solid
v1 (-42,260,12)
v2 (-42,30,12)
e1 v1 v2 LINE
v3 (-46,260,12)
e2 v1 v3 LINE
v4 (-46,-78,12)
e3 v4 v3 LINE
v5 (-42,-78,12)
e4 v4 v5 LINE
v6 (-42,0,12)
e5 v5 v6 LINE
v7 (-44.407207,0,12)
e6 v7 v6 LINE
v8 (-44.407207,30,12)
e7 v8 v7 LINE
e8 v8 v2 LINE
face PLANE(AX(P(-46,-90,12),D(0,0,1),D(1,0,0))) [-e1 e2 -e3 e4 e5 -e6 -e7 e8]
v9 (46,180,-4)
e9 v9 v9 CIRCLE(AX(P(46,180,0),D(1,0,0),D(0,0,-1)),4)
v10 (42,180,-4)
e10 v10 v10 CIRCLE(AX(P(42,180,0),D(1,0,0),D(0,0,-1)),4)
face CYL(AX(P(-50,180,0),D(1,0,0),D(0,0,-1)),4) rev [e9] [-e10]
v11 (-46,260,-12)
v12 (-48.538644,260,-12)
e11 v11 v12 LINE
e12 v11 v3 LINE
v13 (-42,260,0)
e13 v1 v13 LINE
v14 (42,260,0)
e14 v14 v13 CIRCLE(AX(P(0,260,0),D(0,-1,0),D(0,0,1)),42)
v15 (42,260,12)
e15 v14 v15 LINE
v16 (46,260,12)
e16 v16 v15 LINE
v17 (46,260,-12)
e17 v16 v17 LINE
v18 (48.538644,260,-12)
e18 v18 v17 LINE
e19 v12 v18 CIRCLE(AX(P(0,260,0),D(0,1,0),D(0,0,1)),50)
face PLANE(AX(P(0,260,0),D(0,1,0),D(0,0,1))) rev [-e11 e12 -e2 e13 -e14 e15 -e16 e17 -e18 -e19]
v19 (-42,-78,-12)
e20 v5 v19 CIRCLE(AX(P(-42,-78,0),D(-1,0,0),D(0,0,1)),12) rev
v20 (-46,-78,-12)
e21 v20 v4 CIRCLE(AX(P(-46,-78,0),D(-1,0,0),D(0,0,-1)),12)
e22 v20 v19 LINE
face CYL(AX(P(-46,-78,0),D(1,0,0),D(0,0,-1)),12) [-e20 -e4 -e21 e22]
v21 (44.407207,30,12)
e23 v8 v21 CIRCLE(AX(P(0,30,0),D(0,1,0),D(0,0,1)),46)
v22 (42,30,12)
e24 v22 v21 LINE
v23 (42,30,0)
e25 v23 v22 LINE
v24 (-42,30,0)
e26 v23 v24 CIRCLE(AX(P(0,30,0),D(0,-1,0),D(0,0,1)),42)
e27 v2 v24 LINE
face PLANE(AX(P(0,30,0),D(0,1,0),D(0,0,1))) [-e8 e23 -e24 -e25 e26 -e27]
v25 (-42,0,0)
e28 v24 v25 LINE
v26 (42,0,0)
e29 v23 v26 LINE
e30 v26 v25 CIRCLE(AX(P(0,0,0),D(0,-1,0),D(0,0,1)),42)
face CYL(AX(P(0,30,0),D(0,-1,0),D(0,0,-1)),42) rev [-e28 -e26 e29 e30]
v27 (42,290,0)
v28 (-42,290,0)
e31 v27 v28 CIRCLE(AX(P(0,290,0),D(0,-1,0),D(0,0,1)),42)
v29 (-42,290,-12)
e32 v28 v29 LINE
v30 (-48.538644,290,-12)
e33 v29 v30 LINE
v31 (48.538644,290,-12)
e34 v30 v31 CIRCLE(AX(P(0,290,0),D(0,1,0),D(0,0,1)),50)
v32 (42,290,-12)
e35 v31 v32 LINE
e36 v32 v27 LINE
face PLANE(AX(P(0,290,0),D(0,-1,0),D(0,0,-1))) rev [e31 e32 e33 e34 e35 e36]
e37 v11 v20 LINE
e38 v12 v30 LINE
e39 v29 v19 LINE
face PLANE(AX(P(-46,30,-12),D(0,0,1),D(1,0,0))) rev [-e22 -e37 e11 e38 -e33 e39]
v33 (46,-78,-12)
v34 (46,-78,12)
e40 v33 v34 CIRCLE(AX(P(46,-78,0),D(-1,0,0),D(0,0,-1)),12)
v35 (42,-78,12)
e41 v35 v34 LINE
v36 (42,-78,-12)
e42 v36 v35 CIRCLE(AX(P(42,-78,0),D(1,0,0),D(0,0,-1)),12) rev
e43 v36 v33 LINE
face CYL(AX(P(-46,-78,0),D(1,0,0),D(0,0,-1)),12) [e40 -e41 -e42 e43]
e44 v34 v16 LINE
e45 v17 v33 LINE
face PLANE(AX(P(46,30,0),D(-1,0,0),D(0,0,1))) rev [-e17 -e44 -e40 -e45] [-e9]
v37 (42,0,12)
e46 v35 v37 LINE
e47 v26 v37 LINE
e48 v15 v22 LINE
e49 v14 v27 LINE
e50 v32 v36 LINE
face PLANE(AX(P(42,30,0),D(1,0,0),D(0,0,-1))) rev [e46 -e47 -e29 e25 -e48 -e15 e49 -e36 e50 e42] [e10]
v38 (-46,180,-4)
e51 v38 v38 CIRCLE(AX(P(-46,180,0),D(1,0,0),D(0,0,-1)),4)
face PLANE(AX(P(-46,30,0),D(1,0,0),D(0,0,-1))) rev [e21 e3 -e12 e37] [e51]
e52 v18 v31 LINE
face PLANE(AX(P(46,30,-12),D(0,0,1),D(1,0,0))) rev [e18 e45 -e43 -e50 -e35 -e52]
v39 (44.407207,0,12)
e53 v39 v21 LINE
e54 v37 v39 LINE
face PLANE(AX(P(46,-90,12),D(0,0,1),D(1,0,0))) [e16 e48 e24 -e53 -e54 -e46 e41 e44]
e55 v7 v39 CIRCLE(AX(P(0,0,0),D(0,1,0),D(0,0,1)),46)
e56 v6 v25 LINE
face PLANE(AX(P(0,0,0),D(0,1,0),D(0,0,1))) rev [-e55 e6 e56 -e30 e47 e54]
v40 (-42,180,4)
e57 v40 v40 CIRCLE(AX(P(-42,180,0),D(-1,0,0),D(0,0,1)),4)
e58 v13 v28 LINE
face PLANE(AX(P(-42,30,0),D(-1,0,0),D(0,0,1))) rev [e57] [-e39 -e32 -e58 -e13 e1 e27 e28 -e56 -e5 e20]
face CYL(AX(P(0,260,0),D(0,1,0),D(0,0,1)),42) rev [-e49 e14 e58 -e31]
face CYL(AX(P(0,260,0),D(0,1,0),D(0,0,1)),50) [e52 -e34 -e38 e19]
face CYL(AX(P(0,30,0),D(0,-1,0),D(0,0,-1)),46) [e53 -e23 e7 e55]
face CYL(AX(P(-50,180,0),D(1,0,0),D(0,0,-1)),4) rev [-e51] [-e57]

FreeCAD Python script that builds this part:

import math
import FreeCAD as App
import Part
import Sketcher

doc = App.newDocument("Part")
body = doc.addObject("PartDesign::Body", "Body")

# Sketch on XZ plane
sketch1 = body.newObject("Sketcher::SketchObject", "Sketch")
sketch1.AttachmentSupport = (doc.getObject("XZ_Plane"), [""])
sketch1.MapMode = "FlatFace"
sketch1.addGeometry([
    Part.LineSegment(App.Vector(-46, -12, 0), App.Vector(-46, 0, 0)),  # 0
    Part.ArcOfCircle(Part.Circle(App.Vector(0, 0, 0), App.Vector(0, 0, 1), 46), math.radians(0), math.radians(180)),  # 1
    Part.LineSegment(App.Vector(46, 0, 0), App.Vector(46, -12, 0)),  # 2
    Part.LineSegment(App.Vector(46, -12, 0), App.Vector(42, -12, 0)),  # 3
    Part.LineSegment(App.Vector(42, -12, 0), App.Vector(42, 0, 0)),  # 4
    Part.ArcOfCircle(Part.Circle(App.Vector(0, 0, 0), App.Vector(0, 0, 1), 42), math.radians(0), math.radians(180)),  # 5
    Part.LineSegment(App.Vector(-42, 0, 0), App.Vector(-42, -12, 0)),  # 6
    Part.LineSegment(App.Vector(-42, -12, 0), App.Vector(-46, -12, 0)),  # 7
], False)
sketch1.addConstraint([
    Sketcher.Constraint("Tangent", 0, 2, 1, 2),
    Sketcher.Constraint("Tangent", 1, 1, 2, 1),
    Sketcher.Constraint("Coincident", 2, 2, 3, 1),
    Sketcher.Constraint("Coincident", 3, 2, 4, 1),
    Sketcher.Constraint("Tangent", 4, 2, 5, 1),
    Sketcher.Constraint("Tangent", 5, 2, 6, 1),
    Sketcher.Constraint("Coincident", 6, 2, 7, 1),
    Sketcher.Constraint("Coincident", 7, 2, 0, 1),
    Sketcher.Constraint("Vertical", 0),
    Sketcher.Constraint("Vertical", 2),
    Sketcher.Constraint("Horizontal", 3),
    Sketcher.Constraint("Vertical", 4),
    Sketcher.Constraint("Vertical", 6),
    Sketcher.Constraint("Horizontal", 7),
    Sketcher.Constraint("Coincident", 1, 3, -1, 1),
    Sketcher.Constraint("Coincident", 5, 3, -1, 1),
    Sketcher.Constraint("Horizontal", 3, 2, 6, 2),
    Sketcher.Constraint("Radius", 1, 46.0),
    Sketcher.Constraint("Radius", 5, 42.0),
    Sketcher.Constraint("DistanceY", 0, 1, 0, 2, 12.0),
])
pad1 = body.newObject("PartDesign::Pad", "Pad")
pad1.Profile = sketch1
pad1.Length = 30
pad1.Reversed = True

# Sketch on XZ plane
sketch2 = body.newObject("Sketcher::SketchObject", "Sketch001")
sketch2.AttachmentSupport = (doc.getObject("XZ_Plane"), [""])
sketch2.MapMode = "FlatFace"
sketch2.AttachmentOffset = App.Placement(App.Vector(0, 0, -30), App.Rotation())
sketch2.addGeometry([
    Part.LineSegment(App.Vector(-46, -12, 0), App.Vector(-46, 12, 0)),  # 0
    Part.LineSegment(App.Vector(-46, 12, 0), App.Vector(-42, 12, 0)),  # 1
    Part.LineSegment(App.Vector(-42, 12, 0), App.Vector(-42, -12, 0)),  # 2
    Part.LineSegment(App.Vector(-42, -12, 0), App.Vector(-46, -12, 0)),  # 3
    Part.LineSegment(App.Vector(42, -12, 0), App.Vector(42, 12, 0)),  # 4
    Part.LineSegment(App.Vector(42, 12, 0), App.Vector(46, 12, 0)),  # 5
    Part.LineSegment(App.Vector(46, 12, 0), App.Vector(46, -12, 0)),  # 6
    Part.LineSegment(App.Vector(46, -12, 0), App.Vector(42, -12, 0)),  # 7
], False)
sketch2.addConstraint([
    Sketcher.Constraint("Coincident", 0, 2, 1, 1),
    Sketcher.Constraint("Coincident", 1, 2, 2, 1),
    Sketcher.Constraint("Coincident", 2, 2, 3, 1),
    Sketcher.Constraint("Coincident", 3, 2, 0, 1),
    Sketcher.Constraint("Coincident", 4, 2, 5, 1),
    Sketcher.Constraint("Coincident", 5, 2, 6, 1),
    Sketcher.Constraint("Coincident", 6, 2, 7, 1),
    Sketcher.Constraint("Coincident", 7, 2, 4, 1),
    Sketcher.Constraint("Vertical", 0),
    Sketcher.Constraint("Horizontal", 1),
    Sketcher.Constraint("Vertical", 2),
    Sketcher.Constraint("Horizontal", 3),
    Sketcher.Constraint("Vertical", 4),
    Sketcher.Constraint("Horizontal", 5),
    Sketcher.Constraint("Vertical", 6),
    Sketcher.Constraint("Horizontal", 7),
    Sketcher.Constraint("Symmetric", 2, 2, 4, 2, -1, 1),
    Sketcher.Constraint("Symmetric", 0, 2, 6, 2, -1, 1),
    Sketcher.Constraint("Horizontal", 1, 2, 4, 2),
    Sketcher.Constraint("DistanceX", 1, 1, 1, 2, 4.0),
    Sketcher.Constraint("DistanceY", 0, 1, 0, 2, 24.0),
    Sketcher.Constraint("DistanceX", 0, 2, -1, 1, 46.0),
])
pad2 = body.newObject("PartDesign::Pad", "Pad001")
pad2.Profile = sketch2
pad2.Length = 120

# Sketch on YZ plane
sketch3 = body.newObject("Sketcher::SketchObject", "Sketch002")
sketch3.AttachmentSupport = (doc.getObject("YZ_Plane"), [""])
sketch3.MapMode = "FlatFace"
sketch3.AttachmentOffset = App.Placement(App.Vector(0, 0, 46), App.Rotation())
sketch3.addGeometry([
    Part.LineSegment(App.Vector(-78, 12, 0), App.Vector(-98.506149, 12, 0)),
    Part.LineSegment(App.Vector(-98.506149, 12, 0), App.Vector(-98.506149, -12, 0)),
    Part.LineSegment(App.Vector(-98.506149, -12, 0), App.Vector(-78, -12, 0)),
    Part.ArcOfCircle(Part.Circle(App.Vector(-78, 0, 0), App.Vector(0, 0, 1), 12), math.radians(90), math.radians(270)),
], False)
sketch3.addConstraint([
    Sketcher.Constraint("Coincident", 0, 2, 1, 1),
    Sketcher.Constraint("Coincident", 1, 2, 2, 1),
    Sketcher.Constraint("Tangent", 2, 2, 3, 2),
    Sketcher.Constraint("Tangent", 3, 1, 0, 1),
    Sketcher.Constraint("Horizontal", 0),
    Sketcher.Constraint("Vertical", 1),
    Sketcher.Constraint("Horizontal", 2),
    Sketcher.Constraint("PointOnObject", 3, 3, -1),
    Sketcher.Constraint("Radius", 3, 12.0),
    Sketcher.Constraint("DistanceX", 3, 3, -1, 1, 78.0),
    Sketcher.Constraint("DistanceX", 0, 2, 0, 1, 20.506149),
])
pocket1 = body.newObject("PartDesign::Pocket", "Pocket")
pocket1.Profile = sketch3
pocket1.Type = "ThroughAll"

# Sketch on XZ plane
sketch4 = body.newObject("Sketcher::SketchObject", "Sketch003")
sketch4.AttachmentSupport = (doc.getObject("XZ_Plane"), [""])
sketch4.MapMode = "FlatFace"
sketch4.AttachmentOffset = App.Placement(App.Vector(0, 0, -30), App.Rotation())
sketch4.addGeometry([
    Part.LineSegment(App.Vector(42, -12, 0), App.Vector(42, 12, 0)),  # 0
    Part.LineSegment(App.Vector(42, 12, 0), App.Vector(46, 12, 0)),  # 1
    Part.LineSegment(App.Vector(46, 12, 0), App.Vector(46, -12, 0)),  # 2
    Part.LineSegment(App.Vector(46, -12, 0), App.Vector(42, -12, 0)),  # 3
    Part.LineSegment(App.Vector(-46, -12, 0), App.Vector(-46, 12, 0)),  # 4
    Part.LineSegment(App.Vector(-46, 12, 0), App.Vector(-42, 12, 0)),  # 5
    Part.LineSegment(App.Vector(-42, 12, 0), App.Vector(-42, -12, 0)),  # 6
    Part.LineSegment(App.Vector(-42, -12, 0), App.Vector(-46, -12, 0)),  # 7
], False)
sketch4.addConstraint([
    Sketcher.Constraint("Coincident", 0, 2, 1, 1),
    Sketcher.Constraint("Coincident", 1, 2, 2, 1),
    Sketcher.Constraint("Coincident", 2, 2, 3, 1),
    Sketcher.Constraint("Coincident", 3, 2, 0, 1),
    Sketcher.Constraint("Coincident", 4, 2, 5, 1),
    Sketcher.Constraint("Coincident", 5, 2, 6, 1),
    Sketcher.Constraint("Coincident", 6, 2, 7, 1),
    Sketcher.Constraint("Coincident", 7, 2, 4, 1),
    Sketcher.Constraint("Vertical", 0),
    Sketcher.Constraint("Horizontal", 1),
    Sketcher.Constraint("Vertical", 2),
    Sketcher.Constraint("Horizontal", 3),
    Sketcher.Constraint("Vertical", 4),
    Sketcher.Constraint("Horizontal", 5),
    Sketcher.Constraint("Vertical", 6),
    Sketcher.Constraint("Horizontal", 7),
    Sketcher.Constraint("Symmetric", 2, 2, 4, 2, -1, 1),
    Sketcher.Constraint("Symmetric", 0, 2, 6, 2, -1, 1),
    Sketcher.Constraint("Horizontal", 1, 2, 4, 2),
    Sketcher.Constraint("DistanceX", 1, 1, 1, 2, 4.0),
    Sketcher.Constraint("DistanceY", 0, 1, 0, 2, 24.0),
    Sketcher.Constraint("DistanceX", -1, 1, 0, 2, 42.0),
])
pad3 = body.newObject("PartDesign::Pad", "Pad002")
pad3.Profile = sketch4
pad3.Length = 260
pad3.Reversed = True

# Sketch on XZ plane
sketch5 = body.newObject("Sketcher::SketchObject", "Sketch004")
sketch5.AttachmentSupport = (doc.getObject("XZ_Plane"), [""])
sketch5.MapMode = "FlatFace"
sketch5.AttachmentOffset = App.Placement(App.Vector(0, 0, -260), App.Rotation())
sketch5.addGeometry([
    Part.LineSegment(App.Vector(-42, -12, 0), App.Vector(-48.538644, -12, 0)),  # 0
    Part.ArcOfCircle(Part.Circle(App.Vector(0, 0, 0), App.Vector(0, 0, 1), 50), math.radians(-13.88654), math.radians(193.88654)),  # 1
    Part.LineSegment(App.Vector(48.538644, -12, 0), App.Vector(42, -12, 0)),  # 2
    Part.LineSegment(App.Vector(42, -12, 0), App.Vector(42, 0, 0)),  # 3
    Part.ArcOfCircle(Part.Circle(App.Vector(0, 0, 0), App.Vector(0, 0, 1), 42), math.radians(0), math.radians(180)),  # 4
    Part.LineSegment(App.Vector(-42, 0, 0), App.Vector(-42, -12, 0)),  # 5
], False)
sketch5.addConstraint([
    Sketcher.Constraint("Coincident", 0, 2, 1, 2),
    Sketcher.Constraint("Coincident", 1, 1, 2, 1),
    Sketcher.Constraint("Coincident", 2, 2, 3, 1),
    Sketcher.Constraint("Tangent", 3, 2, 4, 1),
    Sketcher.Constraint("Tangent", 4, 2, 5, 1),
    Sketcher.Constraint("Coincident", 5, 2, 0, 1),
    Sketcher.Constraint("Horizontal", 0),
    Sketcher.Constraint("Horizontal", 2),
    Sketcher.Constraint("Vertical", 3),
    Sketcher.Constraint("Vertical", 5),
    Sketcher.Constraint("Coincident", 1, 3, -1, 1),
    Sketcher.Constraint("Coincident", 4, 3, -1, 1),
    Sketcher.Constraint("Horizontal", 0, 2, 1, 1),
    Sketcher.Constraint("Radius", 1, 50.0),
    Sketcher.Constraint("Radius", 4, 42.0),
    Sketcher.Constraint("DistanceY", 3, 1, 3, 2, 12.0),
])
pad4 = body.newObject("PartDesign::Pad", "Pad003")
pad4.Profile = sketch5
pad4.Length = 30
pad4.Reversed = True

# Sketch on YZ plane
sketch6 = body.newObject("Sketcher::SketchObject", "Sketch005")
sketch6.AttachmentSupport = (doc.getObject("YZ_Plane"), [""])
sketch6.MapMode = "FlatFace"
sketch6.AttachmentOffset = App.Placement(App.Vector(0, 0, 46), App.Rotation())
sketch6.addGeometry(Part.Circle(App.Vector(180, 0, 0), App.Vector(0, 0, 1), 4), False)
sketch6.addConstraint([
    Sketcher.Constraint("PointOnObject", 0, 3, -1),
    Sketcher.Constraint("Diameter", 0, 8.0),
    Sketcher.Constraint("DistanceX", -1, 1, 0, 3, 180.0),
])
pocket2 = body.newObject("PartDesign::Pocket", "Pocket001")
pocket2.Profile = sketch6
pocket2.Type = "ThroughAll"

doc.recompute()
